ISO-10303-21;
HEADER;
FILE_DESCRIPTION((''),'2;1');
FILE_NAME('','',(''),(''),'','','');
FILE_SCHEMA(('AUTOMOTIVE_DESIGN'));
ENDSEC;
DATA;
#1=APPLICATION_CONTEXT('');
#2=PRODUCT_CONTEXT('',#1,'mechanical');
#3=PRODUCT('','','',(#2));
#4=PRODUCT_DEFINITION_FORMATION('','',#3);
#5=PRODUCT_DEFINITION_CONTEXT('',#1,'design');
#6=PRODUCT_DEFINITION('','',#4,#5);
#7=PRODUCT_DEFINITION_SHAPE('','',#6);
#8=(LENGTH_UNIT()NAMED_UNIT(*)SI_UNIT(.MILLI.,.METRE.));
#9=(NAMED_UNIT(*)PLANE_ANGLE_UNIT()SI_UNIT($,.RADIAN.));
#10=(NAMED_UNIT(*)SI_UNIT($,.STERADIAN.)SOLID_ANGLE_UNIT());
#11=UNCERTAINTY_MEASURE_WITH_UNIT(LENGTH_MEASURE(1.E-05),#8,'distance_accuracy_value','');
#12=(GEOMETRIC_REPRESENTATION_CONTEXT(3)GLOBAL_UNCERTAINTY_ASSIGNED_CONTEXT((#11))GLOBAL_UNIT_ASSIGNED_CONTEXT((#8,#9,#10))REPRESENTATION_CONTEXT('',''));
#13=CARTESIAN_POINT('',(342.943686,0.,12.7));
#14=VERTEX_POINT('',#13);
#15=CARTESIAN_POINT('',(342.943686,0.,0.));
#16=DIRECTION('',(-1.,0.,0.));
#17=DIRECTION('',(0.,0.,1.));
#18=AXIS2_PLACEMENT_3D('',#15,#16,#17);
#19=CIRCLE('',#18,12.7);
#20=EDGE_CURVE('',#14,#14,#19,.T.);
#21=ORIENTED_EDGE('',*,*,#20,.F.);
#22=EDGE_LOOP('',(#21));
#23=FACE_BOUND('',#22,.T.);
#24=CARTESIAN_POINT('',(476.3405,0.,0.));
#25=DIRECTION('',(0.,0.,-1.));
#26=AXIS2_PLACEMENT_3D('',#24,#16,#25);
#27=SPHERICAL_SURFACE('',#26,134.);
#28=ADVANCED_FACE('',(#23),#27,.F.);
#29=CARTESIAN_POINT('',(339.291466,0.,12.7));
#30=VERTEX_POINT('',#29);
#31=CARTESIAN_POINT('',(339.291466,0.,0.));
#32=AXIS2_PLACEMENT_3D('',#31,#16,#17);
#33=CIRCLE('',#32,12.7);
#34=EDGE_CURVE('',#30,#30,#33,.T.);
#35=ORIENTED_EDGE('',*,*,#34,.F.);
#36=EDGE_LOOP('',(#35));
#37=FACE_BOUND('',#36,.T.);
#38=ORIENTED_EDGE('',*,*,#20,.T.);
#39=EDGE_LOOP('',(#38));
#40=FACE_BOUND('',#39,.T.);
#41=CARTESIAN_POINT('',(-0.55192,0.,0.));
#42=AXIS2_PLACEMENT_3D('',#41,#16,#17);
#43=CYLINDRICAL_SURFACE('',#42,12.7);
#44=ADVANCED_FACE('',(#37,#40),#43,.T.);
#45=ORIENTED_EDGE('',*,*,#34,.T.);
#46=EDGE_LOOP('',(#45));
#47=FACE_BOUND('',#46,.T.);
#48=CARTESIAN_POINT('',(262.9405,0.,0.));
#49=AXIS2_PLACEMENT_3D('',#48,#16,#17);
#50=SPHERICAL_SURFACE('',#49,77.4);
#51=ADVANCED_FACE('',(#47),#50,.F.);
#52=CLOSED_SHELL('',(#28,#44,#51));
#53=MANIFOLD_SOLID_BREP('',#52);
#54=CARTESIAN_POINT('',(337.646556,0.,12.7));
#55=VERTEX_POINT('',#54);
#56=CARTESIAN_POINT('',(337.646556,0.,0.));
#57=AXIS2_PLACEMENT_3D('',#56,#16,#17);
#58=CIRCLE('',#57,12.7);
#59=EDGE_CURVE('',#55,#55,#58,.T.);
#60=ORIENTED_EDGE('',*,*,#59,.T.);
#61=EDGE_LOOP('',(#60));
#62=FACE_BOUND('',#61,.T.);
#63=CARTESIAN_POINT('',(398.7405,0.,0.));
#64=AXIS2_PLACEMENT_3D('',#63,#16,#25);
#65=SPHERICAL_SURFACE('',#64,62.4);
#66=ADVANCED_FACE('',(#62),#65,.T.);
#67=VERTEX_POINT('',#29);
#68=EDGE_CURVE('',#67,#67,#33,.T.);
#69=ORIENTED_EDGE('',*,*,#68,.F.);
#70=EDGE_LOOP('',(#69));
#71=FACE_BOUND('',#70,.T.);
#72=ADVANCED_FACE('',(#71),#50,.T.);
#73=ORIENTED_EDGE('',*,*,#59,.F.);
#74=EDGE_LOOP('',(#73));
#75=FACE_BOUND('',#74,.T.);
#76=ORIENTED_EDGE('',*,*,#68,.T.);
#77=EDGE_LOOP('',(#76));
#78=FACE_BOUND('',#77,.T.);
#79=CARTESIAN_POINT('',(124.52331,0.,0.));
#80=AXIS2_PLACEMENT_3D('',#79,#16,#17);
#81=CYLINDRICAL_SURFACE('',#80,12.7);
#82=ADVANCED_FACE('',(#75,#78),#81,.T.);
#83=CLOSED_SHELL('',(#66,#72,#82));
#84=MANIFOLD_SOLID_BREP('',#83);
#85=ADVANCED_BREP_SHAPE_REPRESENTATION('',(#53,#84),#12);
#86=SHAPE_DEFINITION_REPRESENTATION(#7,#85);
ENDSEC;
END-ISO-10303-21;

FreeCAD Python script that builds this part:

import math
import FreeCAD as App
import Part
import Sketcher

doc = App.newDocument("Part")
body = doc.addObject("PartDesign::Body", "Body")

sketch1 = body.newObject("Sketcher::SketchObject", "Sketch")
sketch1.AttachmentSupport = (doc.getObject("XZ_Plane"), [""])
sketch1.MapMode = "FlatFace"
sketch1.addGeometry([
    Part.ArcOfCircle(Part.Circle(App.Vector(398.7405, 0, 0), App.Vector(0, 0, 1), 62.4), math.radians(180), math.radians(191.743205)),
    Part.LineSegment(App.Vector(336.3405, 0, 0), App.Vector(340.3405, 0, 0)),
    Part.ArcOfCircle(Part.Circle(App.Vector(262.9405, 0, 0), App.Vector(0, 0, 1), 77.4), math.radians(-9.44395), math.radians(0)),
    Part.LineSegment(App.Vector(339.291466, -12.7, 0), App.Vector(337.646556, -12.7, 0)),
], False)
sketch1.addConstraint([
    Sketcher.Constraint("Coincident", 0, 1, 1, 1),
    Sketcher.Constraint("Coincident", 1, 2, 2, 2),
    Sketcher.Constraint("Coincident", 2, 1, 3, 1),
    Sketcher.Constraint("Coincident", 3, 2, 0, 2),
    Sketcher.Constraint("Horizontal", 1),
    Sketcher.Constraint("Horizontal", 3),
    Sketcher.Constraint("PointOnObject", 0, 3, -1),
    Sketcher.Constraint("PointOnObject", 2, 3, -1),
    Sketcher.Constraint("PointOnObject", 0, 1, -1),
    Sketcher.Constraint("Radius", 0, 62.4),
    Sketcher.Constraint("Radius", 2, 77.4),
    Sketcher.Constraint("DistanceX", 1, 1, 1, 2, 4.0),
    Sketcher.Constraint("DistanceY", 2, 1, -1, 1, 12.7),
    Sketcher.Constraint("DistanceX", -1, 1, 0, 3, 398.7405),
])
revolution = body.newObject("PartDesign::Revolution", "Revolution")
revolution.Profile = sketch1
revolution.ReferenceAxis = (sketch1, ["H_Axis"])
revolution.Angle = 360
body2 = doc.addObject("PartDesign::Body", "Body001")

sketch2 = body2.newObject("Sketcher::SketchObject", "Sketch001")
sketch2.AttachmentSupport = (doc.getObject("XZ_Plane001"), [""])
sketch2.MapMode = "FlatFace"
sketch2.addGeometry([
    Part.LineSegment(App.Vector(342.943686, -12.7, 0), App.Vector(339.291466, -12.7, 0)),
    Part.ArcOfCircle(Part.Circle(App.Vector(262.9405, 0, 0), App.Vector(0, 0, 1), 77.4), math.radians(-9.44395), math.radians(0)),
    Part.LineSegment(App.Vector(340.3405, 0, 0), App.Vector(342.3405, 0, 0)),
    Part.ArcOfCircle(Part.Circle(App.Vector(476.3405, 0, 0), App.Vector(0, 0, 1), 134), math.radians(180), math.radians(185.438434)),
], False)
sketch2.addConstraint([
    Sketcher.Constraint("Coincident", 0, 2, 1, 1),
    Sketcher.Constraint("Coincident", 1, 2, 2, 1),
    Sketcher.Constraint("Coincident", 2, 2, 3, 1),
    Sketcher.Constraint("Coincident", 3, 2, 0, 1),
    Sketcher.Constraint("Horizontal", 0),
    Sketcher.Constraint("Horizontal", 2),
    Sketcher.Constraint("PointOnObject", 1, 3, -1),
    Sketcher.Constraint("PointOnObject", 3, 3, -1),
    Sketcher.Constraint("PointOnObject", 1, 2, -1),
    Sketcher.Constraint("Radius", 3, 134.0),
    Sketcher.Constraint("Radius", 1, 77.4),
    Sketcher.Constraint("DistanceX", 2, 1, 2, 2, 2.0),
    Sketcher.Constraint("DistanceY", 0, 2, -1, 1, 12.7),
    Sketcher.Constraint("DistanceX", -1, 1, 1, 3, 262.9405),
])
revolution2 = body2.newObject("PartDesign::Revolution", "Revolution001")
revolution2.Profile = sketch2
revolution2.ReferenceAxis = (sketch2, ["H_Axis"])
revolution2.Angle = 360

doc.recompute()
